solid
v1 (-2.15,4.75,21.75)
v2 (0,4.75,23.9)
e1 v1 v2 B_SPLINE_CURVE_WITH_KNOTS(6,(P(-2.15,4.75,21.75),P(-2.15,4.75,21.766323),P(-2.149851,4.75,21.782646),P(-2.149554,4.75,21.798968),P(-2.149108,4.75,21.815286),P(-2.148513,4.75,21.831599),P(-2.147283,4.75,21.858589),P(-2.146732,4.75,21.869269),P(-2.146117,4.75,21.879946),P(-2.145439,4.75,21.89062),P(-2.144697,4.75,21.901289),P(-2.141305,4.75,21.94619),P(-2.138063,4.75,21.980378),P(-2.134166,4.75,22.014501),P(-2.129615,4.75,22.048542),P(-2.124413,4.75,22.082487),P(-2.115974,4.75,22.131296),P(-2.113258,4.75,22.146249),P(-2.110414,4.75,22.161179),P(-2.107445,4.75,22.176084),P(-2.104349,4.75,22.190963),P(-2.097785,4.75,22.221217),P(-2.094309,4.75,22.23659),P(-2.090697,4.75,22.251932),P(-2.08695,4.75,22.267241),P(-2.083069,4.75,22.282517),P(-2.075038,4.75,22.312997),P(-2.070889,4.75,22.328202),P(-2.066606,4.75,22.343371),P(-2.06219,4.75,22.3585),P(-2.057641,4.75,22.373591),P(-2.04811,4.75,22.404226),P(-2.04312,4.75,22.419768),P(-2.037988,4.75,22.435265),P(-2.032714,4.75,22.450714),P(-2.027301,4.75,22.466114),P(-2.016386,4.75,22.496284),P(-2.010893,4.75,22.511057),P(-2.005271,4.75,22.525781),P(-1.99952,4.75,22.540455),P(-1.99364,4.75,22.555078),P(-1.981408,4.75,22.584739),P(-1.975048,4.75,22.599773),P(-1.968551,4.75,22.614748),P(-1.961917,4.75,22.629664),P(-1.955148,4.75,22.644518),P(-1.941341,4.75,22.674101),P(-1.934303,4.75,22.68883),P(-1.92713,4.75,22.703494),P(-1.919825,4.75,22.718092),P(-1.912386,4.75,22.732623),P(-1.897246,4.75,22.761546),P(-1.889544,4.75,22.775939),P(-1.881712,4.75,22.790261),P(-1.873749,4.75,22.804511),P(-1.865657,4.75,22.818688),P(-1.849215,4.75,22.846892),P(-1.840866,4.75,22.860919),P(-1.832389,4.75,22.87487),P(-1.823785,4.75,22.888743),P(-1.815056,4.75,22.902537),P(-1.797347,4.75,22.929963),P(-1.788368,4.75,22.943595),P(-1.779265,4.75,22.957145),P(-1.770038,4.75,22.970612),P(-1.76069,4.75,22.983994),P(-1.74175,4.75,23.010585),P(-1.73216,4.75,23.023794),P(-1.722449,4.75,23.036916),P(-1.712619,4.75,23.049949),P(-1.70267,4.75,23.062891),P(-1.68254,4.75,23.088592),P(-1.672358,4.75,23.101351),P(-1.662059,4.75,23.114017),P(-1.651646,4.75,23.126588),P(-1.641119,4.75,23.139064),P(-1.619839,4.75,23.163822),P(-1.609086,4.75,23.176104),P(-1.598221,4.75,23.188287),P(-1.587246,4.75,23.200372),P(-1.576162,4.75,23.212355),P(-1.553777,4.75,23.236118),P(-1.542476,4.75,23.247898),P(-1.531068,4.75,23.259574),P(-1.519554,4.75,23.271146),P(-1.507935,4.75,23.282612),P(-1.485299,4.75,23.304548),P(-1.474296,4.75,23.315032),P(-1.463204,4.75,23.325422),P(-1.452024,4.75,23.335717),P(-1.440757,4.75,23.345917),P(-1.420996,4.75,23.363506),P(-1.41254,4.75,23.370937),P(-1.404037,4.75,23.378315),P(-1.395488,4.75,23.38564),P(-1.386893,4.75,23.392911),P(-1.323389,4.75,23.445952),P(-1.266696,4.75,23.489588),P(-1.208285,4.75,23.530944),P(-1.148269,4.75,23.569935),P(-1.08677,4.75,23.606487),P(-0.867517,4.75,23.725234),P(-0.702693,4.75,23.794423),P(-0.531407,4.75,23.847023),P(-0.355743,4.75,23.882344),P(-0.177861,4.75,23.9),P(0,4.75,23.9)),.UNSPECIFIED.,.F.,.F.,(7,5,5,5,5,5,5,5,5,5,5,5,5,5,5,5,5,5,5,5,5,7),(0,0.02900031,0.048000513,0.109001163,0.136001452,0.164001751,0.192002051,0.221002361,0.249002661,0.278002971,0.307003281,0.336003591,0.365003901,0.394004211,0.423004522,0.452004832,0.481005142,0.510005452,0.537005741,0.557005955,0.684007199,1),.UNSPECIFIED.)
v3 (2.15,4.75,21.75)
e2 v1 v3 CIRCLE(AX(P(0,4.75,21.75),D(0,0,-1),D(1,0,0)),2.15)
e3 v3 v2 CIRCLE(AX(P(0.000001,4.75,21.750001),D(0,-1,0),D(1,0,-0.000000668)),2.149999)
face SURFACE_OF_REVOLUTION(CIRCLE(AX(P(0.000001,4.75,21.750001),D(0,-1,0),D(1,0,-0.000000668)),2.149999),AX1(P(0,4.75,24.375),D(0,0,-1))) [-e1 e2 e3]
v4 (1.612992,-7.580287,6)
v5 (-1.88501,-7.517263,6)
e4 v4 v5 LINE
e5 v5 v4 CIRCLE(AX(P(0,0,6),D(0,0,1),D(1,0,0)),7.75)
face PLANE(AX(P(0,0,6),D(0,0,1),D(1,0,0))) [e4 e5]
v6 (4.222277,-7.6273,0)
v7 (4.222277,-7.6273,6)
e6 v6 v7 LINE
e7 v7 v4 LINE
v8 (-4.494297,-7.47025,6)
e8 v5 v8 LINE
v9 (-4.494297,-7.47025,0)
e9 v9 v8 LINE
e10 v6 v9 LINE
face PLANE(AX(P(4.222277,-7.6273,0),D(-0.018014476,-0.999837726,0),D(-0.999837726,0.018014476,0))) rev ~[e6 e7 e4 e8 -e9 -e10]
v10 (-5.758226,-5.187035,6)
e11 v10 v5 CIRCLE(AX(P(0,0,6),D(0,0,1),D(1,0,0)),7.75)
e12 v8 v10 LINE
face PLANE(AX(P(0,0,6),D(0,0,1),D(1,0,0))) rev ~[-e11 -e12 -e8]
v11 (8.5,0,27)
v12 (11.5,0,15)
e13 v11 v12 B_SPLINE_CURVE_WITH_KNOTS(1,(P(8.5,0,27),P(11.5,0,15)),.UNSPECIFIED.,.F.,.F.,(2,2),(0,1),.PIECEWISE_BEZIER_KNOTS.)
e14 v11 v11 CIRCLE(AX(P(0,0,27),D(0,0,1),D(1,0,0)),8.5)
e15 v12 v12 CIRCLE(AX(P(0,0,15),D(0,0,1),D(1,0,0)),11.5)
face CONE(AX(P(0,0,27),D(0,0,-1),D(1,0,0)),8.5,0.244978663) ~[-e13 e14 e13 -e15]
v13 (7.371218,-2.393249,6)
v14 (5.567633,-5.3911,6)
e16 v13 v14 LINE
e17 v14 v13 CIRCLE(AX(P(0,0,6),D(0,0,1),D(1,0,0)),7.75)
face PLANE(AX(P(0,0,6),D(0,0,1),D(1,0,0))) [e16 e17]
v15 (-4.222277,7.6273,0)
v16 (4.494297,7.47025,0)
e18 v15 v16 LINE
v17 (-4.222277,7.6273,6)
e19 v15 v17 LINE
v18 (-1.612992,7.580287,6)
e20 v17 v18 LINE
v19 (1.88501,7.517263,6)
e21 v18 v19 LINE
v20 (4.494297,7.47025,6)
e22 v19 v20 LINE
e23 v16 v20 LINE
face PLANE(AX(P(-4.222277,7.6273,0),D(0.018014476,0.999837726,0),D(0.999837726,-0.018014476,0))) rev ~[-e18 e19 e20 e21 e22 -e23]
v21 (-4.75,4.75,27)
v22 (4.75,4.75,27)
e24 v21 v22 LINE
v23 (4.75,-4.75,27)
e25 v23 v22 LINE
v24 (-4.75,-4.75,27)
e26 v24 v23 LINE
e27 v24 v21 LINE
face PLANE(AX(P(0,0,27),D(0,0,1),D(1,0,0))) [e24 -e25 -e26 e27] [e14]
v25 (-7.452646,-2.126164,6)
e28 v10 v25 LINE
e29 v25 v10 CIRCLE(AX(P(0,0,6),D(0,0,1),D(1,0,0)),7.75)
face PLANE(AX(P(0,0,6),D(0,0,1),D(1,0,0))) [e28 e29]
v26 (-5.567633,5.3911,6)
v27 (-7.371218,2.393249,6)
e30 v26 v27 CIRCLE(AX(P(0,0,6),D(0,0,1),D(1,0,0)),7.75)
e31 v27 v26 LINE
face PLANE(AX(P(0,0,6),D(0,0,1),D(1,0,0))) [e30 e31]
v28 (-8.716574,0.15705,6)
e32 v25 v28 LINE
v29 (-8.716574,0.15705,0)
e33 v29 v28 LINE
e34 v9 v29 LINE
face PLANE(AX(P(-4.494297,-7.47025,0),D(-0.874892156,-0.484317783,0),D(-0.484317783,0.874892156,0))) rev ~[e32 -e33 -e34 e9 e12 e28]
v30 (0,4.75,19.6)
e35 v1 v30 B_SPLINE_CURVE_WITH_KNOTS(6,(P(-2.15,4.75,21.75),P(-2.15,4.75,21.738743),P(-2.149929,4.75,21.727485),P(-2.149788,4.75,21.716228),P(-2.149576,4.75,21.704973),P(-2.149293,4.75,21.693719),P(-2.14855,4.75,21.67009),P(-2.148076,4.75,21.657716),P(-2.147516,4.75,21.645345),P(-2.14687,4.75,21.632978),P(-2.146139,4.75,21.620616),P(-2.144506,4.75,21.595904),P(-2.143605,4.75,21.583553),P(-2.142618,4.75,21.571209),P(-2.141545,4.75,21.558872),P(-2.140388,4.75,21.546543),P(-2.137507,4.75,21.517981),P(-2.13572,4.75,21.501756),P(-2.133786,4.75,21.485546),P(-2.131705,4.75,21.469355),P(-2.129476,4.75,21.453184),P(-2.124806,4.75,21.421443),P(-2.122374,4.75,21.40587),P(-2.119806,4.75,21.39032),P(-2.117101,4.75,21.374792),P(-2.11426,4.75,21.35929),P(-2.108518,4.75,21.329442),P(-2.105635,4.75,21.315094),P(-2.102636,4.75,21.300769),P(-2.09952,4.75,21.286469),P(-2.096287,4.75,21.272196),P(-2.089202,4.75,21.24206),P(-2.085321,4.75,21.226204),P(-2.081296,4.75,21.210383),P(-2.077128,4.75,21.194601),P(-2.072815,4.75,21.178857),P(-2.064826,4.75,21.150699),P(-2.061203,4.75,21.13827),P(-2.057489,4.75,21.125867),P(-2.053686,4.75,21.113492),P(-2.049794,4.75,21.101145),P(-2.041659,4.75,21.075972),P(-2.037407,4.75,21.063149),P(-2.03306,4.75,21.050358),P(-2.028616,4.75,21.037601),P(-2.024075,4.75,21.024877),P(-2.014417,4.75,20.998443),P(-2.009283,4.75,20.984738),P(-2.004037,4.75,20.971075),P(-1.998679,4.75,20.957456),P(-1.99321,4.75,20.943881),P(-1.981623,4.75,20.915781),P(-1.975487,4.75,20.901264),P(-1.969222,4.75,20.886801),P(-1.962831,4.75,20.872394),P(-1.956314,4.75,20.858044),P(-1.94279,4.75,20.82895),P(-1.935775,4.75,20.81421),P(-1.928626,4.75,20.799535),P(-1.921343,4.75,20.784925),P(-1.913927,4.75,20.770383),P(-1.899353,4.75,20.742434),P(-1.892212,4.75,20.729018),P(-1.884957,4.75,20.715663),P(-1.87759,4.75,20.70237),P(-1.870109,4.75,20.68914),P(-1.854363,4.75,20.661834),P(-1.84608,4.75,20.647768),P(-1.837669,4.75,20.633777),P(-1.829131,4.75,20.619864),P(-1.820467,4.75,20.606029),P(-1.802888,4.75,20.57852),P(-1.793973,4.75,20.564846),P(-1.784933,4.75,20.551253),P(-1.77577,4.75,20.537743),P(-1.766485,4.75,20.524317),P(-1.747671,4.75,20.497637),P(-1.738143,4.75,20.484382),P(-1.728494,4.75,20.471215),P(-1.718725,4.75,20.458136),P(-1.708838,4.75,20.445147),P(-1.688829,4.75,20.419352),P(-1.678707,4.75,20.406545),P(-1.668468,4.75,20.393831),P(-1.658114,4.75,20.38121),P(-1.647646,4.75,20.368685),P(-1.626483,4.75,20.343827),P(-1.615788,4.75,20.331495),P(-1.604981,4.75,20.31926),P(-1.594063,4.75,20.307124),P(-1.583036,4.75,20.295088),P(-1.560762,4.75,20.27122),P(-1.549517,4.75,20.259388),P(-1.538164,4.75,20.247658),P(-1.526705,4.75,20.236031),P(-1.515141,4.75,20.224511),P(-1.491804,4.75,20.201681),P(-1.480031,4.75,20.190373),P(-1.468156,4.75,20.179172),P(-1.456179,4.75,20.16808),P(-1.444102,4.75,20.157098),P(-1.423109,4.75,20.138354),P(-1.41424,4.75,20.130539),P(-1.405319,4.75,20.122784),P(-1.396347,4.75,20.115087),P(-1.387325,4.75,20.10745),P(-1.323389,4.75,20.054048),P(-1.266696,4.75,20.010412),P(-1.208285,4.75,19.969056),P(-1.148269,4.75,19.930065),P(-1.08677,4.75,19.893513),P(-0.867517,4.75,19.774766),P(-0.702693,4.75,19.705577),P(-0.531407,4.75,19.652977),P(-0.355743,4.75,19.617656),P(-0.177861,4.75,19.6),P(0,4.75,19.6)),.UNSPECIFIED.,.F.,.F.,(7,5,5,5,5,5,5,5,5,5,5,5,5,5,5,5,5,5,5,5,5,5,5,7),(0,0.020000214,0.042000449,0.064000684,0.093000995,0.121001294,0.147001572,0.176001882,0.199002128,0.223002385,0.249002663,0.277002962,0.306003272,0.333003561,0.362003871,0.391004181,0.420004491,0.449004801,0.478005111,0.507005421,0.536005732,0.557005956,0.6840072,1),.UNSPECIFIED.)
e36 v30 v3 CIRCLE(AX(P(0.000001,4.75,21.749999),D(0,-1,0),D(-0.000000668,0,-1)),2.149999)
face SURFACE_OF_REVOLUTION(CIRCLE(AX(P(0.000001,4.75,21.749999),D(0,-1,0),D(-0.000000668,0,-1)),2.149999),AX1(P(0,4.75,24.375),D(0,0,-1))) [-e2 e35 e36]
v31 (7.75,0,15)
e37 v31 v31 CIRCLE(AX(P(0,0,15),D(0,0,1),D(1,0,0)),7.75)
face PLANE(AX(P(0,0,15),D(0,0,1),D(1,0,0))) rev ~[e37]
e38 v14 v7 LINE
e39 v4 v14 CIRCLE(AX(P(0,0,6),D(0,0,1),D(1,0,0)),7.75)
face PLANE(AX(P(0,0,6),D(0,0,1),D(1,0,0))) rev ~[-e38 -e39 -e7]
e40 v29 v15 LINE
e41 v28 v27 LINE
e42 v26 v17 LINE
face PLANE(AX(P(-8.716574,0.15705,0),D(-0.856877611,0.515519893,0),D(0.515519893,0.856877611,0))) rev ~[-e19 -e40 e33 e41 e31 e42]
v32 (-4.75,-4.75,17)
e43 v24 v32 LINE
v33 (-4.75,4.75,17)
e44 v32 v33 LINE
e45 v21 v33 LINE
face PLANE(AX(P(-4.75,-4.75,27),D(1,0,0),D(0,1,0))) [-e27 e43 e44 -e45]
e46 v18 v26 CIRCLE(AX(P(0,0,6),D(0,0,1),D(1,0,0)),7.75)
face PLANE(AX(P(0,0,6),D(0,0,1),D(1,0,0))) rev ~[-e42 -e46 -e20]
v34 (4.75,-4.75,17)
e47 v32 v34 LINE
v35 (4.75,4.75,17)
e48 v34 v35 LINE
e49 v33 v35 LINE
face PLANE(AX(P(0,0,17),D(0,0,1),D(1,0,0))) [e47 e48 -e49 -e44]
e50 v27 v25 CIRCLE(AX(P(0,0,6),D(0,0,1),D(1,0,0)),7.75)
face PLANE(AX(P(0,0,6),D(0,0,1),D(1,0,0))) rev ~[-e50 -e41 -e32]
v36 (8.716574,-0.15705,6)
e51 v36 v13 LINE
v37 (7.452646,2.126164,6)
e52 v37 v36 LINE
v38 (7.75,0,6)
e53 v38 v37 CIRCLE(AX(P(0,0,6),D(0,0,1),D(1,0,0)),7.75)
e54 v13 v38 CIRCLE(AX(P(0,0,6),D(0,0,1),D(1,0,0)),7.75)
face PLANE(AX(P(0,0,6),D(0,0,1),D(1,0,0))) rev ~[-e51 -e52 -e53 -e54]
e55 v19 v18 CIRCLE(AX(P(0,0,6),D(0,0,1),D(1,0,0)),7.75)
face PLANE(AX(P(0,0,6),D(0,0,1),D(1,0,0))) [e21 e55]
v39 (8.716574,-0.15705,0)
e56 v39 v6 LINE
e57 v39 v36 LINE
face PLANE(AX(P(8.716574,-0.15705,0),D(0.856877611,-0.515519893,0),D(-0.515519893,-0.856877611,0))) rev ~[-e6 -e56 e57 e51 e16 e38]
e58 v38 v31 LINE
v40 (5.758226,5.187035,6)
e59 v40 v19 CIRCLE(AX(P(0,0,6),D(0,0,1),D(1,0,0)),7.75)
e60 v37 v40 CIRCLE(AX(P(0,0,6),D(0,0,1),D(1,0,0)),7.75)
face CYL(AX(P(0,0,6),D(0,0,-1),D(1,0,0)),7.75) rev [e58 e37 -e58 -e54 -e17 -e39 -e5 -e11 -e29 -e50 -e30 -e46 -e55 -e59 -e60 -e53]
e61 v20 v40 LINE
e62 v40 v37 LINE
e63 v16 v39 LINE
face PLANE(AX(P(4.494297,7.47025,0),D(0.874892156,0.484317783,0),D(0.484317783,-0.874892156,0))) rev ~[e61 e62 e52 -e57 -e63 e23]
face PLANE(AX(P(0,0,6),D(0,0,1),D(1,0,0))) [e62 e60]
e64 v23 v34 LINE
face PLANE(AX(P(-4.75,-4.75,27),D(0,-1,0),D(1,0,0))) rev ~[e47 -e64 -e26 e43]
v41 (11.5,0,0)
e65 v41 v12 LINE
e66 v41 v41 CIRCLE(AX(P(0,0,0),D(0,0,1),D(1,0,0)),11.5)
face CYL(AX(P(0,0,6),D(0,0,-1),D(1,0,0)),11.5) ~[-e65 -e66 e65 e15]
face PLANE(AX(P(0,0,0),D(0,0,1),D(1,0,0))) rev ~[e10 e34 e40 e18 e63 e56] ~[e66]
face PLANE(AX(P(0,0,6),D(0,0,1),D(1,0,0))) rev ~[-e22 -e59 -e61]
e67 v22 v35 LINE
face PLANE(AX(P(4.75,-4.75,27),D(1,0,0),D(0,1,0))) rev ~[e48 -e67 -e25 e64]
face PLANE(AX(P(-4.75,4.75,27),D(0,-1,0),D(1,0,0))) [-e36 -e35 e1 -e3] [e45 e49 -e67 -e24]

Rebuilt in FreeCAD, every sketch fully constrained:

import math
import FreeCAD as App
import Part
import Sketcher
from FreeCAD import Vector


def add_polygon(sketch, points):
    """Adds a closed chain of lines whose ends are joined by coincident constraints."""
    first, n = sketch.GeometryCount, len(points)
    for a, b in zip(points, points[1:] + points[:1]):
        sketch.addGeometry(Part.LineSegment(App.Vector(*a, 0), App.Vector(*b, 0)), False)
    for i in range(n):
        sketch.addConstraint(Sketcher.Constraint("Coincident", first + i, 2, first + (i + 1) % n, 1))

doc = App.newDocument("Part")
body = doc.addObject("PartDesign::Body", "Body")

sketch1 = body.newObject("Sketcher::SketchObject", "Sketch")
sketch1.AttachmentSupport = (doc.getObject("XY_Plane"), [""])
sketch1.MapMode = "FlatFace"
sketch1.addGeometry(Part.Circle(Vector(0, 0, 0), Vector(0, 0, 1), 11.5), False)
add_polygon(sketch1, [(-4.222277, 7.6273), (4.494297, 7.47025), (8.716574, -0.15705), (4.222277, -7.6273), (-4.494297, -7.47025), (-8.716574, 0.15705)])
sketch1.addConstraint(Sketcher.Constraint("Coincident", 0, 3, -1, 1))
sketch1.addConstraint(Sketcher.Constraint("Symmetric", 1, 2, 4, 2, -1, 1))
sketch1.addConstraint(Sketcher.Constraint("Symmetric", 2, 2, 5, 2, -1, 1))
sketch1.addConstraint(Sketcher.Constraint("Symmetric", 3, 2, 6, 2, -1, 1))
sketch1.addConstraint(Sketcher.Constraint("Equal", 1, 2))
sketch1.addConstraint(Sketcher.Constraint("Equal", 2, 3))
sketch1.addConstraint(Sketcher.Constraint("Diameter", 0, 23.0))
sketch1.addConstraint(Sketcher.Constraint("DistanceY", 3, 2, -1, 1, 7.6273))
sketch1.addConstraint(Sketcher.Constraint("DistanceY", 2, 2, 1, 2, 7.6273))
sketch1.addConstraint(Sketcher.Constraint("DistanceY", 4, 2, 2, 2, 7.3132))
sketch1.addConstraint(Sketcher.Constraint("Distance", 1, 8.717989))
pad1 = body.newObject("PartDesign::Pad", "Pad")
pad1.Profile = sketch1
pad1.Length = 6

sketch2 = body.newObject("Sketcher::SketchObject", "Sketch001")
sketch2.AttachmentSupport = (doc.getObject("XY_Plane"), [""])
sketch2.MapMode = "FlatFace"
sketch2.AttachmentOffset = App.Placement(Vector(0, 0, 6), App.Rotation())
sketch2.addGeometry(Part.Circle(Vector(0, 0, 0), Vector(0, 0, 1), 11.5), False)
sketch2.addGeometry(Part.Circle(Vector(0, 0, 0), Vector(0, 0, 1), 7.75), False)
sketch2.addConstraint(Sketcher.Constraint("Coincident", 0, 3, -1, 1))
sketch2.addConstraint(Sketcher.Constraint("Coincident", 1, 3, -1, 1))
sketch2.addConstraint(Sketcher.Constraint("Diameter", 0, 23.0))
sketch2.addConstraint(Sketcher.Constraint("Diameter", 1, 15.5))
pad2 = body.newObject("PartDesign::Pad", "Pad001")
pad2.Profile = sketch2
pad2.Length = 9

sketch3 = body.newObject("Sketcher::SketchObject", "Sketch002")
sketch3.AttachmentSupport = (doc.getObject("XY_Plane"), [""])
sketch3.MapMode = "FlatFace"
sketch3.AttachmentOffset = App.Placement(Vector(0, 0, 27), App.Rotation())
sketch3.addGeometry(Part.Circle(Vector(0, 0, 0), Vector(0, 0, 1), 8.5), False)
sketch3.addConstraint(Sketcher.Constraint("Coincident", 0, 3, -1, 1))
sketch3.addConstraint(Sketcher.Constraint("Diameter", 0, 17.0))

sketch4 = body.newObject("Sketcher::SketchObject", "Sketch003")
sketch4.AttachmentSupport = (doc.getObject("XY_Plane"), [""])
sketch4.MapMode = "FlatFace"
sketch4.AttachmentOffset = App.Placement(Vector(0, 0, 15), App.Rotation())
sketch4.addGeometry(Part.Circle(Vector(0, 0, 0), Vector(0, 0, 1), 11.5), False)
sketch4.addConstraint(Sketcher.Constraint("Coincident", 0, 3, -1, 1))
sketch4.addConstraint(Sketcher.Constraint("Diameter", 0, 23.0))

additiveloft = body.newObject("PartDesign::AdditiveLoft", "AdditiveLoft")
additiveloft.Profile = sketch3
additiveloft.Sections = [sketch4]

sketch5 = body.newObject("Sketcher::SketchObject", "Sketch004")
sketch5.AttachmentSupport = (doc.getObject("XY_Plane"), [""])
sketch5.MapMode = "FlatFace"
sketch5.AttachmentOffset = App.Placement(Vector(0, 0, 27), App.Rotation())
add_polygon(sketch5, [(-4.75, 4.75), (-4.75, -4.75), (4.75, -4.75), (4.75, 4.75)])
sketch5.addConstraint(Sketcher.Constraint("Vertical", 0))
sketch5.addConstraint(Sketcher.Constraint("Horizontal", 1))
sketch5.addConstraint(Sketcher.Constraint("Vertical", 2))
sketch5.addConstraint(Sketcher.Constraint("Horizontal", 3))
sketch5.addConstraint(Sketcher.Constraint("Symmetric", 0, 2, 2, 2, -1, 1))
sketch5.addConstraint(Sketcher.Constraint("Equal", 3, 0))
sketch5.addConstraint(Sketcher.Constraint("DistanceX", 1, 1, 1, 2, 9.5))
pocket1 = body.newObject("PartDesign::Pocket", "Pocket")
pocket1.Profile = sketch5
pocket1.Length = 10

sketch6 = body.newObject("Sketcher::SketchObject", "Sketch005")
sketch6.AttachmentSupport = (doc.getObject("XZ_Plane"), [""])
sketch6.MapMode = "FlatFace"
sketch6.AttachmentOffset = App.Placement(Vector(0, 0, -4.75), App.Rotation())
sketch6.addGeometry(Part.ArcOfCircle(Part.Circle(Vector(0.000001, 21.750001, 0), Vector(0, 0, 1), 2.149999), math.radians(-0.000038), math.radians(90.000038)), False)
sketch6.addGeometry(Part.LineSegment(Vector(0, 23.9, 0), Vector(0, 19.6, 0)), False)
sketch6.addGeometry(Part.ArcOfCircle(Part.Circle(Vector(0.000001, 21.749999, 0), Vector(0, 0, 1), 2.149999), math.radians(-90.000038), math.radians(0.000038)), False)
sketch6.addConstraint(Sketcher.Constraint("Coincident", 0, 2, 1, 1))
sketch6.addConstraint(Sketcher.Constraint("Coincident", 1, 2, 2, 1))
sketch6.addConstraint(Sketcher.Constraint("Tangent", 2, 2, 0, 1))
sketch6.addConstraint(Sketcher.Constraint("Vertical", 1))
sketch6.addConstraint(Sketcher.Constraint("Equal", 0, 2))
sketch6.addConstraint(Sketcher.Constraint("PointOnObject", 0, 3, -2))
sketch6.addConstraint(Sketcher.Constraint("PointOnObject", 0, 2, -2))
sketch6.addConstraint(Sketcher.Constraint("Horizontal", 0, 3, 2, 2))
sketch6.addConstraint(Sketcher.Constraint("Radius", 0, 2.149999))
sketch6.addConstraint(Sketcher.Constraint("DistanceY", -1, 1, 0, 2, 23.9))
groove = body.newObject("PartDesign::Groove", "Groove")
groove.Profile = sketch6
groove.ReferenceAxis = (sketch6, ["V_Axis"])
groove.Angle = 360

doc.recompute()
